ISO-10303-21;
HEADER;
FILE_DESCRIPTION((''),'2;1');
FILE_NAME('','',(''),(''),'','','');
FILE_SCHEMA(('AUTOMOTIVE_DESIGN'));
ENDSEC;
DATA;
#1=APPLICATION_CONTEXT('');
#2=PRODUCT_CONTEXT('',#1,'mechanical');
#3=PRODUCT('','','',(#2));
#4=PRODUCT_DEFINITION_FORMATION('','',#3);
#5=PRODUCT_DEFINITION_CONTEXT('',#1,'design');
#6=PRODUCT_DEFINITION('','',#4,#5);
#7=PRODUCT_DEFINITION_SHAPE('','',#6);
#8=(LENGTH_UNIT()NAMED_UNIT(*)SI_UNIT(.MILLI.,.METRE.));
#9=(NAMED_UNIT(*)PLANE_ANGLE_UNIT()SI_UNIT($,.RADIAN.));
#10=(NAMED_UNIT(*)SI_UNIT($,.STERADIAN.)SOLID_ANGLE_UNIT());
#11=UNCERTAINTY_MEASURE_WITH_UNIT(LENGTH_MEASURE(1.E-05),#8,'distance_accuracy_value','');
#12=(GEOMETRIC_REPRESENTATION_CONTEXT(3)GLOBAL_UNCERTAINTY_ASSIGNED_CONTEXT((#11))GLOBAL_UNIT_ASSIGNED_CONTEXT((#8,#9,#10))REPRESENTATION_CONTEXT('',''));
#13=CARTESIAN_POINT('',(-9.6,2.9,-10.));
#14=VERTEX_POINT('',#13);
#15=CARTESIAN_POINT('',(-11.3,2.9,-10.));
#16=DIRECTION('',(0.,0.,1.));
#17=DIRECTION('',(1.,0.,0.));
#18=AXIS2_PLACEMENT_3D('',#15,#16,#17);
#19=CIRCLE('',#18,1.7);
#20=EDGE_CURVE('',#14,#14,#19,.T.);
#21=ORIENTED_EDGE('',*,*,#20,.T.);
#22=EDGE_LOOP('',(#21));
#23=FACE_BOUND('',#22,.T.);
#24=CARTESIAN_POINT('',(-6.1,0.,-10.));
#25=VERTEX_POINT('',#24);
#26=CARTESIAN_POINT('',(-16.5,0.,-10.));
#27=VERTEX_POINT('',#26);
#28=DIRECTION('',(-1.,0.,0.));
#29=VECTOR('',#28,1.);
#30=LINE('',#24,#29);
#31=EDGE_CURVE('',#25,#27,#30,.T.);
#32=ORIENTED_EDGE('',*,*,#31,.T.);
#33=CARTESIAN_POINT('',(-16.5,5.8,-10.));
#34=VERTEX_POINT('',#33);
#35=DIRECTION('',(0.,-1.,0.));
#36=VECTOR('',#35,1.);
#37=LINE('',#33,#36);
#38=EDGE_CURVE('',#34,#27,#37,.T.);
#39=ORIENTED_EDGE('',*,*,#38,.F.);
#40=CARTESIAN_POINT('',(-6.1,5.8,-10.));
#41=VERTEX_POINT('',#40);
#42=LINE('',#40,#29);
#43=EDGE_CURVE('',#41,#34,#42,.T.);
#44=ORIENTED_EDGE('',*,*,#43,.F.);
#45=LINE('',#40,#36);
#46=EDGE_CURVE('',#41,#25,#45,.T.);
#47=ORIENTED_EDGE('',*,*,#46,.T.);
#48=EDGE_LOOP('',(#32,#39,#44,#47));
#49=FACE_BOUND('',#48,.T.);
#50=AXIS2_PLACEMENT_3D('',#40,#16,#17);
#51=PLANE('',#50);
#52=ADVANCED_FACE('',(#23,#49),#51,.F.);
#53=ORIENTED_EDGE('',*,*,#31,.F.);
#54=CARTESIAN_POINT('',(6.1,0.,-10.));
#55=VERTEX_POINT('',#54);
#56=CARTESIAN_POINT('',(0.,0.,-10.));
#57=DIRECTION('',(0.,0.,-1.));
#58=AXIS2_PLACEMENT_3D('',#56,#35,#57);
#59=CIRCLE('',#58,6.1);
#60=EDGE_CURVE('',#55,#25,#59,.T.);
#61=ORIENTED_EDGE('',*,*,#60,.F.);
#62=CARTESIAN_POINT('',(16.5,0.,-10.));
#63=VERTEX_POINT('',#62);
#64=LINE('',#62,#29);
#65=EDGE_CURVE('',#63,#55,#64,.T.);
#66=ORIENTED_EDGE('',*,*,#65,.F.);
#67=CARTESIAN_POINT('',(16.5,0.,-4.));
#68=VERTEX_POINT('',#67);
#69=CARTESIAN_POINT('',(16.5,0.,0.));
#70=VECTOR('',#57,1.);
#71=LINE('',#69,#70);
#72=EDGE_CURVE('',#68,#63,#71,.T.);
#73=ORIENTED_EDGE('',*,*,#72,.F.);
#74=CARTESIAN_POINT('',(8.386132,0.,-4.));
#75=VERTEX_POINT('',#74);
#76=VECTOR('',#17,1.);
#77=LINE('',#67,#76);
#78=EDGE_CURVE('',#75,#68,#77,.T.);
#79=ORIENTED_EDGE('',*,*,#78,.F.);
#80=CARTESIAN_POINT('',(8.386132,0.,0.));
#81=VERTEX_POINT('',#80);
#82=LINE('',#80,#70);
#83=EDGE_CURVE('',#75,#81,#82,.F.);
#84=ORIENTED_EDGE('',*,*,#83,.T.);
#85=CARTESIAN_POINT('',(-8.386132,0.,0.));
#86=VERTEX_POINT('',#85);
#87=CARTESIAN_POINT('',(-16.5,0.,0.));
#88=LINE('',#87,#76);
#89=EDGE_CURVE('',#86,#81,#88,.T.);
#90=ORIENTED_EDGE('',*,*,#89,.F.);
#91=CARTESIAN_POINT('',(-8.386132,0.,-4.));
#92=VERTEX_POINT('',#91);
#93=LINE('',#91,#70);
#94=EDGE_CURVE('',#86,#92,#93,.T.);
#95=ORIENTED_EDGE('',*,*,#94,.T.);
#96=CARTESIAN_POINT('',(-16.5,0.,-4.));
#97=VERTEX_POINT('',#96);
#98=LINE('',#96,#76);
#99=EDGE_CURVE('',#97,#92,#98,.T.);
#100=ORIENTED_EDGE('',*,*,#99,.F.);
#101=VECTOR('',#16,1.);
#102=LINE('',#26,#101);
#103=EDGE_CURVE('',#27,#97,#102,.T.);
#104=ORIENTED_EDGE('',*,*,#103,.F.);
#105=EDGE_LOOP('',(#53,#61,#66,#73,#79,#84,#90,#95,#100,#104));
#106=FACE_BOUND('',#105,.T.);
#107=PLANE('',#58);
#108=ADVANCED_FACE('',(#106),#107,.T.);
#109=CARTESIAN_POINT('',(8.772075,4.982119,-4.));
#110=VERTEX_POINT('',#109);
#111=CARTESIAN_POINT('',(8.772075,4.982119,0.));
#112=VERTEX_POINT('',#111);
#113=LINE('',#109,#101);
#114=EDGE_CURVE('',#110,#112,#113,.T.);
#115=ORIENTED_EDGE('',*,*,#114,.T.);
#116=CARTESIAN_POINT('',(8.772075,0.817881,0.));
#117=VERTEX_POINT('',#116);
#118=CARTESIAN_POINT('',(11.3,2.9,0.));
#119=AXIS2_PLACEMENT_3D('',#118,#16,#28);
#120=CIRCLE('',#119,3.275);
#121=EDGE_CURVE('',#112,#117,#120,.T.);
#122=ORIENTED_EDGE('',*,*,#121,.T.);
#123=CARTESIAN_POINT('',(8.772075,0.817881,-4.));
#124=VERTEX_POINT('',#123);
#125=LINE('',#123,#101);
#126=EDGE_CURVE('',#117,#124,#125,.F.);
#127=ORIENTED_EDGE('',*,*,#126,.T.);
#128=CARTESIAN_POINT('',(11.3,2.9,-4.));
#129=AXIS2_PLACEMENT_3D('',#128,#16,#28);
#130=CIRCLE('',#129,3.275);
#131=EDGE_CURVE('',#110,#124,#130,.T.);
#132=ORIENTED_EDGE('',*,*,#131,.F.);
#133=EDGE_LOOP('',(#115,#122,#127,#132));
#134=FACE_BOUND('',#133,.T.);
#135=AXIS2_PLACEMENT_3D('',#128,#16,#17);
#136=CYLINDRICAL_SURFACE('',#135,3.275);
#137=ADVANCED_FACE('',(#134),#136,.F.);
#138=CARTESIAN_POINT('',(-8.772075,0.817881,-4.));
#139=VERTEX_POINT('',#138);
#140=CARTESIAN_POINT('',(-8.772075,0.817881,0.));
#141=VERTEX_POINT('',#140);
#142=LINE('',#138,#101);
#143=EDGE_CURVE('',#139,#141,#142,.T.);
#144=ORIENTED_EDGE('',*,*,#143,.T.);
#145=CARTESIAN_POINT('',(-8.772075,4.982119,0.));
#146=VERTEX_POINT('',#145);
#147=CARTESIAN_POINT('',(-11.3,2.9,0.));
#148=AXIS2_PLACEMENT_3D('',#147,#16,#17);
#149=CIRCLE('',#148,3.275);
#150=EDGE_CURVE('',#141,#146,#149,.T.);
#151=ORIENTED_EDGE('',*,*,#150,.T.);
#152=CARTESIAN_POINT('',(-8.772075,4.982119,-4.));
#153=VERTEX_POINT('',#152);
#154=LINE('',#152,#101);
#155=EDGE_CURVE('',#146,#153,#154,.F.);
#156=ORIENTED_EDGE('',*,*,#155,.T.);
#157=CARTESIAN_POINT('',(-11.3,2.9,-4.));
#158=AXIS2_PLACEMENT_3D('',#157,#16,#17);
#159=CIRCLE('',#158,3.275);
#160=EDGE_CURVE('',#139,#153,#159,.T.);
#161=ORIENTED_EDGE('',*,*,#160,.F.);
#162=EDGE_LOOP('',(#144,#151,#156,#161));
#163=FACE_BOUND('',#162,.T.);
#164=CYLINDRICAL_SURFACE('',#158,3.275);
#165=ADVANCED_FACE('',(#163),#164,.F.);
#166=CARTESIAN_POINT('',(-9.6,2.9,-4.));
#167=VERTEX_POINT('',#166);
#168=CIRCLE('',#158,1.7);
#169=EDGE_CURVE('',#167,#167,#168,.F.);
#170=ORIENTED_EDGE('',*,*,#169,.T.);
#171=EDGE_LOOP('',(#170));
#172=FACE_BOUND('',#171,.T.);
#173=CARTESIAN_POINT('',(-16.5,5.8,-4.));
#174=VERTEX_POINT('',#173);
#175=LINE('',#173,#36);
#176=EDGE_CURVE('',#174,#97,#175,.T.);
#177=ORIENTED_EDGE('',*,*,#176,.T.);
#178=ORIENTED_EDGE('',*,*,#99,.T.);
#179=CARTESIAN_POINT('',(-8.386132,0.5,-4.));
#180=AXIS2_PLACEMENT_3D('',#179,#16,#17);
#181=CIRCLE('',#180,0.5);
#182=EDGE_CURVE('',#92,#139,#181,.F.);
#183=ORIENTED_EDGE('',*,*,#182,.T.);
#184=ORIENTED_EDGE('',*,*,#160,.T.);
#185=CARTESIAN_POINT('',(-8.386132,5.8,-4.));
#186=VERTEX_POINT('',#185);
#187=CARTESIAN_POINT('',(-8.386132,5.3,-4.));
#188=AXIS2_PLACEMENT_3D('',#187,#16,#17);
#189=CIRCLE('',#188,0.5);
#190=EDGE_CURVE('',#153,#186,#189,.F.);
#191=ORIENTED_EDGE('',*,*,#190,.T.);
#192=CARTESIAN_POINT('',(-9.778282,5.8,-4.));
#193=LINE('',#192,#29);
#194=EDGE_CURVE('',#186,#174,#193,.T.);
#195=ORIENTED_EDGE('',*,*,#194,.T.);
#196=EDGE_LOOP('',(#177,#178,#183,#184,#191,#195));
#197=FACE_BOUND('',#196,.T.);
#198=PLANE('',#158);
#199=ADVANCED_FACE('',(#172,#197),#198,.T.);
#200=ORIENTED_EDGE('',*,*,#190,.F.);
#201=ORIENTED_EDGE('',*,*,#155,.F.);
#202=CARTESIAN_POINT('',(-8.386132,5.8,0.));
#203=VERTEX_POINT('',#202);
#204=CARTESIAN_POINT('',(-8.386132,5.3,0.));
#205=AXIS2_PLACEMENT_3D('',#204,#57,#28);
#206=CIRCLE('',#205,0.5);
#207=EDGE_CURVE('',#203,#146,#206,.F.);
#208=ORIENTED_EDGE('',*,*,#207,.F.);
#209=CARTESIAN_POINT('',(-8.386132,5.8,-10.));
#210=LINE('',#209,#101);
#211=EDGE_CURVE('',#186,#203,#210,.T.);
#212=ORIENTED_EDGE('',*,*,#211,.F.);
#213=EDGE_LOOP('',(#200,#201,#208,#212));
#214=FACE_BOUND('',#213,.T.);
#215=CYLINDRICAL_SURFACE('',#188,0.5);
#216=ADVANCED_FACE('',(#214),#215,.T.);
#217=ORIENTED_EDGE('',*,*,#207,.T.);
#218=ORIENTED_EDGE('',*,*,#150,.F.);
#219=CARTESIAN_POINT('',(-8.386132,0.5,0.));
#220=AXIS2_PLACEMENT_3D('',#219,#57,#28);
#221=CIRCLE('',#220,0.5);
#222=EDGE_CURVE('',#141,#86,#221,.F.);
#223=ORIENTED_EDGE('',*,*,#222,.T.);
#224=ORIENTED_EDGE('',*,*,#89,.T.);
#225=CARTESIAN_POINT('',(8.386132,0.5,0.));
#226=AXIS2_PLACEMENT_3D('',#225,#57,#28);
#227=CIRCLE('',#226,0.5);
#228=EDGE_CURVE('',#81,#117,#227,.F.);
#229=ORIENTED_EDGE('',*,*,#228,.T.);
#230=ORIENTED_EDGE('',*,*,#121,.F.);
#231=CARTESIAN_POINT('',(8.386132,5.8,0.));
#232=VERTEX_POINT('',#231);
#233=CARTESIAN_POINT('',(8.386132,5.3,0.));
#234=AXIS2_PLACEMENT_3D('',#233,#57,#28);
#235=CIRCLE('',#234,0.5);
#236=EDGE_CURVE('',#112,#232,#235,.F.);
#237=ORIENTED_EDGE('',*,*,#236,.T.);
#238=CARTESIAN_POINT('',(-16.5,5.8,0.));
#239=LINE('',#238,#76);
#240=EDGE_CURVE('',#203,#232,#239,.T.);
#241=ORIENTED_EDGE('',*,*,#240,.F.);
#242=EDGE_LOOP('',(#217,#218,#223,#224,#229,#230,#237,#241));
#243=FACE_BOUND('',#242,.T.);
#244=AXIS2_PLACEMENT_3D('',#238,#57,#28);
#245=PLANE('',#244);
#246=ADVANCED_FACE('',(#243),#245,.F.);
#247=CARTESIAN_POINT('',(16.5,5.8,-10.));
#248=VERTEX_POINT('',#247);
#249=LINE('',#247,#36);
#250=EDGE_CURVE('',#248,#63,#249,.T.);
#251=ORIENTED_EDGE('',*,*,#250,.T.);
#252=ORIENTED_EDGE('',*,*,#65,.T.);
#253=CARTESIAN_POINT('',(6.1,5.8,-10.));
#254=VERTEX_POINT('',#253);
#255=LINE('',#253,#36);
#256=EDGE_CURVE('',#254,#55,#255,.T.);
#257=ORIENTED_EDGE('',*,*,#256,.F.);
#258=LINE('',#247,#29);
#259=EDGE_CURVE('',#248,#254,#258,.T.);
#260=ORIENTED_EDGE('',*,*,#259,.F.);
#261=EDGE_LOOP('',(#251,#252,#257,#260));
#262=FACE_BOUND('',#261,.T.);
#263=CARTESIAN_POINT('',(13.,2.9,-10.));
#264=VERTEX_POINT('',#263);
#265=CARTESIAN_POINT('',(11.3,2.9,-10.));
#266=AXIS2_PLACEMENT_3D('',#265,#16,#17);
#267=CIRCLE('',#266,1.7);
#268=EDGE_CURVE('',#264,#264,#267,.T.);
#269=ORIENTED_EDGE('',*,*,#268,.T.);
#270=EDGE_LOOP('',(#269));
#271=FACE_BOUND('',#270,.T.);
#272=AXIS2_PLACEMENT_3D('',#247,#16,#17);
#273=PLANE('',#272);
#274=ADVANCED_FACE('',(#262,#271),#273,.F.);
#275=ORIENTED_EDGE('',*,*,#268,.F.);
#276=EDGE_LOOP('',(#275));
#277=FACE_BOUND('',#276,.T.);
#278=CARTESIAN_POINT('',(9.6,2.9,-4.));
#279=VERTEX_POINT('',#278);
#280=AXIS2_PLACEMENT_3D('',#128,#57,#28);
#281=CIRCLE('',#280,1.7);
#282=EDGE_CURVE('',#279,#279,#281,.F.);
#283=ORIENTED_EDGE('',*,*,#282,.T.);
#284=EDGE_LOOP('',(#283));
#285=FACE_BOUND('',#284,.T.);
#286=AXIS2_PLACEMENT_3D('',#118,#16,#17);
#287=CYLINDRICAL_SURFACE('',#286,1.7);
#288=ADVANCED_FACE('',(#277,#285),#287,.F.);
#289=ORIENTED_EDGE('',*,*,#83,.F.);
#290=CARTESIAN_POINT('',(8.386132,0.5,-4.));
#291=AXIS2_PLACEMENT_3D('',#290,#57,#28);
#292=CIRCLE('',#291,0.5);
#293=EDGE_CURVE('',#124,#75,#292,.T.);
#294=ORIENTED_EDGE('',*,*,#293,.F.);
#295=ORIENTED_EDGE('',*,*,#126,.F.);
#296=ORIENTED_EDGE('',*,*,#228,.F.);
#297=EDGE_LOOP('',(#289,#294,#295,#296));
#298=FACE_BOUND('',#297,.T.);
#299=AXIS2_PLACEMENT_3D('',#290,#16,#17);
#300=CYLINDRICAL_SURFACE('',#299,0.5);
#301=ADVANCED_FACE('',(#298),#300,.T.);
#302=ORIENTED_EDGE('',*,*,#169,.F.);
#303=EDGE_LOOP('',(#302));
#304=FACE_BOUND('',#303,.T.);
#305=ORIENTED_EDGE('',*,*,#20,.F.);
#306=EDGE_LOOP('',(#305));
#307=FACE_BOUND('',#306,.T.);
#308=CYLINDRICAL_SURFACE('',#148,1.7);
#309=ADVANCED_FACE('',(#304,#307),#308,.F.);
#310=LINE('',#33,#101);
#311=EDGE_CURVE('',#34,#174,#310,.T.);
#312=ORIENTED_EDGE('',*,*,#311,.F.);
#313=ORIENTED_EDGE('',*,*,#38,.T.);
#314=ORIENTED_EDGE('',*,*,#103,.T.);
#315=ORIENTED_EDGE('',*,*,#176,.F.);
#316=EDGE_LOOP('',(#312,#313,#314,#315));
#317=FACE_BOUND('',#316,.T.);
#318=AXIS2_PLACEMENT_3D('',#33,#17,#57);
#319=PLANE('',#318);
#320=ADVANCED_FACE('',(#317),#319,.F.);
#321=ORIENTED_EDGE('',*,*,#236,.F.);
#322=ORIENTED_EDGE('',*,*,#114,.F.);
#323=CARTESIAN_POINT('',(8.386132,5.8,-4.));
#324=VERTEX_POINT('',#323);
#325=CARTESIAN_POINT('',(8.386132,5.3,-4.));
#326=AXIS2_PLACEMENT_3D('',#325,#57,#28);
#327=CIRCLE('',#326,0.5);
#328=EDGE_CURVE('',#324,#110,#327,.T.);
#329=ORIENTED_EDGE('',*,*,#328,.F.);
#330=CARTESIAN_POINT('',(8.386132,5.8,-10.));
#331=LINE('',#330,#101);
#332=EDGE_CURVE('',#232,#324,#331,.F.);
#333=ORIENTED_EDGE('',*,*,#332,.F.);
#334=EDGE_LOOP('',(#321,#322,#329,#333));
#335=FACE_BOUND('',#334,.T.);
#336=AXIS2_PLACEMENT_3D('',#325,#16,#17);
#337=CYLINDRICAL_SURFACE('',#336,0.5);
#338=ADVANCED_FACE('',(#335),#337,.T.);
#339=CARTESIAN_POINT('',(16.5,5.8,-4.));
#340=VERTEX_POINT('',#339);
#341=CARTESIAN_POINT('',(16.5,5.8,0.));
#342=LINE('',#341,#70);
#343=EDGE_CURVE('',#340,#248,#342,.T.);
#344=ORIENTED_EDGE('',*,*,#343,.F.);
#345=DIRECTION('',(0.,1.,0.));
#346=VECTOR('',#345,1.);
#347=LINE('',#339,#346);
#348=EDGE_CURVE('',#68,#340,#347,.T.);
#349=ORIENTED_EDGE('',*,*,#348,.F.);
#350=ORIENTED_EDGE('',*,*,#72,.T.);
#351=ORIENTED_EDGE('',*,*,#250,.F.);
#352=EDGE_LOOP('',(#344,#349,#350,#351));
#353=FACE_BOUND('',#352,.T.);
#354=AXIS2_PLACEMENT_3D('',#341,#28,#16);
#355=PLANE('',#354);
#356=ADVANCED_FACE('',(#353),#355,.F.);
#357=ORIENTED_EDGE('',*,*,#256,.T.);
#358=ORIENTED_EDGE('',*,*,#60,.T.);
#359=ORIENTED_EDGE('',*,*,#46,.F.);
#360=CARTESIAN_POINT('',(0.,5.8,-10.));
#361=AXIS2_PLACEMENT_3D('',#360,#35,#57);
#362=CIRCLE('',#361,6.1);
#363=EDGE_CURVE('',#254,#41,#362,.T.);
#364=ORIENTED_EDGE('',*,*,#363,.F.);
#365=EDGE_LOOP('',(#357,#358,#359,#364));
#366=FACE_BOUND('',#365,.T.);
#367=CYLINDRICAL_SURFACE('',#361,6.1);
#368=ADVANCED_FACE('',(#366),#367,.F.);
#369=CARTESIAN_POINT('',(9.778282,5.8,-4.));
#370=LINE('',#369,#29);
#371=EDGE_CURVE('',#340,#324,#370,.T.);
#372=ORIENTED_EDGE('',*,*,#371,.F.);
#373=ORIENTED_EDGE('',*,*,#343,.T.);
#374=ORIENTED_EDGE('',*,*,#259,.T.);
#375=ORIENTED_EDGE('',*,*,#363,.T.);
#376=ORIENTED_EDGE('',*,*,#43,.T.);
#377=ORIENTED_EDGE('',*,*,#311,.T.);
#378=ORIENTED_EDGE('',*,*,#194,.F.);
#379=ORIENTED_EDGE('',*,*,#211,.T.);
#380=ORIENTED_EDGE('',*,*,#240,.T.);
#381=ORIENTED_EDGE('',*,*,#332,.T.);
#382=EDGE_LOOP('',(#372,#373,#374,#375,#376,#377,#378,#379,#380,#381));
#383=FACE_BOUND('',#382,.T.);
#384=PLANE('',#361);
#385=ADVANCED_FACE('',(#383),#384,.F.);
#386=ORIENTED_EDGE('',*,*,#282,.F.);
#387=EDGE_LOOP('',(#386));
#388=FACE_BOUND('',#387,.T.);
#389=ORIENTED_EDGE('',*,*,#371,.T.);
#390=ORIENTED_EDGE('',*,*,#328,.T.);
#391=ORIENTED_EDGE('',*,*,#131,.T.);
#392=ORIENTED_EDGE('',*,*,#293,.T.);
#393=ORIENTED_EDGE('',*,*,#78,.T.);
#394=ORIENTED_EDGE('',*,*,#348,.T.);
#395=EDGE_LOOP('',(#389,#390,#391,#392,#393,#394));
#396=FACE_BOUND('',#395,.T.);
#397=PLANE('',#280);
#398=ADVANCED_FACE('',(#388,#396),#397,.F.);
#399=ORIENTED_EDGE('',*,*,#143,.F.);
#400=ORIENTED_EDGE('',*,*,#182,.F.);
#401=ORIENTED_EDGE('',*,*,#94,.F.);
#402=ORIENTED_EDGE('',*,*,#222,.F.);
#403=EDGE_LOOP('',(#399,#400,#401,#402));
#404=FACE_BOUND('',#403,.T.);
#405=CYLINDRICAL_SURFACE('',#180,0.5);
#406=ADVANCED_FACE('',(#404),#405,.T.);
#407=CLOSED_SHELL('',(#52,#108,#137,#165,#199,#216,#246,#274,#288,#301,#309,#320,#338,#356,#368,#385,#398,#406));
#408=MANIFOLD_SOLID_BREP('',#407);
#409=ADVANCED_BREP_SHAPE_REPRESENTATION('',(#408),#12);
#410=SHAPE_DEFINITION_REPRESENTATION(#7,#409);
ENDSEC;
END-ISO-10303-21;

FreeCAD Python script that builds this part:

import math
import FreeCAD as App
import Part
import Sketcher


def edges_at(feature, points):
    """Names of the edges that pass closest to the given points."""
    edges = feature.Shape.Edges
    near = lambda p: min(range(len(edges)), key=lambda i: edges[i].distToShape(Part.Vertex(*p))[0])
    return sorted({f"Edge{near(p) + 1}" for p in points})

doc = App.newDocument("Part")
body = doc.addObject("PartDesign::Body", "Body")

sketch1 = doc.addObject("Sketcher::SketchObject", "Sketch")
body.addObject(sketch1)
sketch1.AttachmentSupport = (doc.XZ_Plane, [""])
sketch1.MapMode = "FlatFace"
sketch1.addGeometry([
    Part.LineSegment(App.Vector(-16.5, 0, 0), App.Vector(16.5, 0, 0)),
    Part.LineSegment(App.Vector(16.5, 0, 0), App.Vector(16.5, -10, 0)),
    Part.LineSegment(App.Vector(16.5, -10, 0), App.Vector(6.1, -10, 0)),
    Part.ArcOfCircle(Part.Circle(App.Vector(0, -10, 0), App.Vector(0, 0, 1), 6.1), math.radians(0), math.radians(180)),
    Part.LineSegment(App.Vector(-6.1, -10, 0), App.Vector(-16.5, -10, 0)),
    Part.LineSegment(App.Vector(-16.5, -10, 0), App.Vector(-16.5, 0, 0)),
], False)
sketch1.addConstraint([
    Sketcher.Constraint("Coincident", 0, 2, 1, 1),
    Sketcher.Constraint("Coincident", 1, 2, 2, 1),
    Sketcher.Constraint("Coincident", 2, 2, 3, 1),
    Sketcher.Constraint("Coincident", 3, 2, 4, 1),
    Sketcher.Constraint("Coincident", 4, 2, 5, 1),
    Sketcher.Constraint("Coincident", 5, 2, 0, 1),
    Sketcher.Constraint("Horizontal", 0),
    Sketcher.Constraint("Vertical", 1),
    Sketcher.Constraint("Horizontal", 2),
    Sketcher.Constraint("Horizontal", 4),
    Sketcher.Constraint("Vertical", 5),
    Sketcher.Constraint("Symmetric", 0, 2, 5, 2, -1, 1),
    Sketcher.Constraint("Symmetric", 2, 2, 3, 2, -2),
    Sketcher.Constraint("Horizontal", 3, 3, 1, 2),
    Sketcher.Constraint("Radius", 3, 6.1),
    Sketcher.Constraint("DistanceX", 0, 1, 0, 2, 33.0),
    Sketcher.Constraint("DistanceY", 1, 2, 1, 1, 10.0),
])
pad1 = doc.addObject("PartDesign::Pad", "Pad")
body.addObject(pad1)
pad1.Profile = sketch1
pad1.Length = 5.8
pad1.Reversed = True

sketch2 = doc.addObject("Sketcher::SketchObject", "Sketch001")
body.addObject(sketch2)
sketch2.AttachmentSupport = (doc.XY_Plane, [""])
sketch2.MapMode = "FlatFace"
sketch2.addGeometry([
    Part.Circle(App.Vector(-11.3, 2.9, 0), App.Vector(0, 0, 1), 1.7),
    Part.Circle(App.Vector(11.3, 2.9, 0), App.Vector(0, 0, 1), 1.7),
], False)
sketch2.addConstraint([
    Sketcher.Constraint("Equal", 0, 1),
    Sketcher.Constraint("Symmetric", 0, 3, 1, 3, -2),
    Sketcher.Constraint("Diameter", 0, 3.4),
    Sketcher.Constraint("DistanceX", 0, 3, -1, 1, 11.3),
    Sketcher.Constraint("DistanceY", -1, 1, 0, 3, 2.9),
])
doc.recompute()
hole = doc.addObject("PartDesign::Hole", "Hole")
body.addObject(hole)
hole.Profile = sketch2
hole.ThreadType = "None"
hole.Diameter = 3.4
hole.DepthType = "ThroughAll"

sketch3 = doc.addObject("Sketcher::SketchObject", "Sketch002")
body.addObject(sketch3)
sketch3.AttachmentSupport = (doc.XY_Plane, [""])
sketch3.MapMode = "FlatFace"
sketch3.addGeometry([
    Part.LineSegment(App.Vector(-9.778282, 5.8, 0), App.Vector(-16.5, 5.8, 0)),
    Part.LineSegment(App.Vector(-16.5, 5.8, 0), App.Vector(-16.5, 0, 0)),
    Part.LineSegment(App.Vector(-16.5, 0, 0), App.Vector(-9.778282, 0, 0)),
    Part.ArcOfCircle(Part.Circle(App.Vector(-11.3, 2.9, 0), App.Vector(0, 0, 1), 3.275), math.radians(-62.312644), math.radians(62.312644)),
    Part.LineSegment(App.Vector(9.778282, 0, 0), App.Vector(16.5, 0, 0)),
    Part.LineSegment(App.Vector(16.5, 0, 0), App.Vector(16.5, 5.8, 0)),
    Part.LineSegment(App.Vector(16.5, 5.8, 0), App.Vector(9.778282, 5.8, 0)),
    Part.ArcOfCircle(Part.Circle(App.Vector(11.3, 2.9, 0), App.Vector(0, 0, 1), 3.275), math.radians(117.687356), math.radians(242.312644)),
], False)
sketch3.addConstraint([
    Sketcher.Constraint("Coincident", 0, 2, 1, 1),
    Sketcher.Constraint("Coincident", 1, 2, 2, 1),
    Sketcher.Constraint("Coincident", 2, 2, 3, 1),
    Sketcher.Constraint("Coincident", 3, 2, 0, 1),
    Sketcher.Constraint("Coincident", 4, 2, 5, 1),
    Sketcher.Constraint("Coincident", 5, 2, 6, 1),
    Sketcher.Constraint("Coincident", 6, 2, 7, 1),
    Sketcher.Constraint("Coincident", 7, 2, 4, 1),
    Sketcher.Constraint("Horizontal", 0),
    Sketcher.Constraint("Vertical", 1),
    Sketcher.Constraint("Horizontal", 2),
    Sketcher.Constraint("Horizontal", 4),
    Sketcher.Constraint("Vertical", 5),
    Sketcher.Constraint("Horizontal", 6),
    Sketcher.Constraint("Equal", 3, 7),
    Sketcher.Constraint("Symmetric", 1, 2, 4, 2, -1, 1),
    Sketcher.Constraint("Symmetric", 3, 3, 7, 3, -2),
    Sketcher.Constraint("PointOnObject", 1, 2, -1),
    Sketcher.Constraint("Horizontal", 3, 2, 5, 2),
    Sketcher.Constraint("Vertical", 2, 2, 3, 2),
    Sketcher.Constraint("DistanceY", 1, 2, 1, 1, 5.8),
    Sketcher.Constraint("Radius", 3, 3.275),
    Sketcher.Constraint("DistanceX", 1, 2, 4, 2, 33.0),
    Sketcher.Constraint("DistanceX", 3, 3, -1, 1, 11.3),
])
pocket1 = doc.addObject("PartDesign::Pocket", "Pocket")
body.addObject(pocket1)
pocket1.Profile = sketch3
pocket1.Length = 4
doc.recompute()

fillet = doc.addObject("PartDesign::Fillet", "Fillet")
body.addObject(fillet)
fillet.Base = (pocket1, edges_at(pocket1, [
    (-9.778, 5.8, -2),
    (-9.778, 0, -2),
    (9.778, 0, -2),
    (9.778, 5.8, -2),
]))
fillet.Radius = 0.5

doc.recompute()
